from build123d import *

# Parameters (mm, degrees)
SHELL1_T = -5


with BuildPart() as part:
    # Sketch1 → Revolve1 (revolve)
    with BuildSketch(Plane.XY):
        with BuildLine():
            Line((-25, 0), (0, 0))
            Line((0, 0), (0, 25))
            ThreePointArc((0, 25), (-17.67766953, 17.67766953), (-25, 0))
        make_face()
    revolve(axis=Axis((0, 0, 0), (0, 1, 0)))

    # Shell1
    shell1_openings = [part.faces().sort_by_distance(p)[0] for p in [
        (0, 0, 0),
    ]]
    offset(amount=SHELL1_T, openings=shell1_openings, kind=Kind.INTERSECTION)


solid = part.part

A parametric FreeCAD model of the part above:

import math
import FreeCAD as App
import Part
import Sketcher
Q = App.Units.Quantity


def faces_at(feature, points):
    """Names of the faces that lie closest to the given points."""
    faces = feature.Shape.Faces
    near = lambda p: min(range(len(faces)), key=lambda i: faces[i].distToShape(Part.Vertex(*p))[0])
    return sorted({f"Face{near(p) + 1}" for p in points})

doc = App.newDocument("Part")
body = doc.addObject("PartDesign::Body", "Body")

# Sketch on XY plane
sketch1 = doc.addObject("Sketcher::SketchObject", "Sketch")
body.addObject(sketch1)
sketch1.AttachmentSupport = (doc.XY_Plane, [""])
sketch1.MapMode = "FlatFace"
sketch1.addGeometry(Part.LineSegment(App.Vector(-25, 0, 0), App.Vector(0, 0, 0)), False)
sketch1.addGeometry(Part.LineSegment(App.Vector(0, 0, 0), App.Vector(0, 25, 0)), False)
sketch1.addGeometry(Part.ArcOfCircle(Part.Circle(App.Vector(0, 0, 0), App.Vector(0, 0, 1), 25), math.radians(90), math.radians(180)), False)
sketch1.addConstraint(Sketcher.Constraint("Coincident", 0, 2, 1, 1))
sketch1.addConstraint(Sketcher.Constraint("Coincident", 1, 2, 2, 1))
sketch1.addConstraint(Sketcher.Constraint("Coincident", 2, 2, 0, 1))
sketch1.addConstraint(Sketcher.Constraint("Horizontal", 0))
sketch1.addConstraint(Sketcher.Constraint("Vertical", 1))
sketch1.addConstraint(Sketcher.Constraint("Coincident", 2, 3, -1, 1))
sketch1.addConstraint(Sketcher.Constraint("Coincident", 0, 2, -1, 1))
sketch1.addConstraint(Sketcher.Constraint("Radius", 2, Q("25 mm")))
revolution = doc.addObject("PartDesign::Revolution", "Revolution")
body.addObject(revolution)
revolution.Profile = sketch1
revolution.ReferenceAxis = (sketch1, ["V_Axis"])
revolution.Angle = 360
doc.recompute()

thickness = doc.addObject("PartDesign::Thickness", "Thickness")
body.addObject(thickness)
thickness.Base = (revolution, faces_at(revolution, [(0, 0, 0)]))
thickness.Value = 5
thickness.Reversed = True
thickness.Join = "Intersection"

doc.recompute()
